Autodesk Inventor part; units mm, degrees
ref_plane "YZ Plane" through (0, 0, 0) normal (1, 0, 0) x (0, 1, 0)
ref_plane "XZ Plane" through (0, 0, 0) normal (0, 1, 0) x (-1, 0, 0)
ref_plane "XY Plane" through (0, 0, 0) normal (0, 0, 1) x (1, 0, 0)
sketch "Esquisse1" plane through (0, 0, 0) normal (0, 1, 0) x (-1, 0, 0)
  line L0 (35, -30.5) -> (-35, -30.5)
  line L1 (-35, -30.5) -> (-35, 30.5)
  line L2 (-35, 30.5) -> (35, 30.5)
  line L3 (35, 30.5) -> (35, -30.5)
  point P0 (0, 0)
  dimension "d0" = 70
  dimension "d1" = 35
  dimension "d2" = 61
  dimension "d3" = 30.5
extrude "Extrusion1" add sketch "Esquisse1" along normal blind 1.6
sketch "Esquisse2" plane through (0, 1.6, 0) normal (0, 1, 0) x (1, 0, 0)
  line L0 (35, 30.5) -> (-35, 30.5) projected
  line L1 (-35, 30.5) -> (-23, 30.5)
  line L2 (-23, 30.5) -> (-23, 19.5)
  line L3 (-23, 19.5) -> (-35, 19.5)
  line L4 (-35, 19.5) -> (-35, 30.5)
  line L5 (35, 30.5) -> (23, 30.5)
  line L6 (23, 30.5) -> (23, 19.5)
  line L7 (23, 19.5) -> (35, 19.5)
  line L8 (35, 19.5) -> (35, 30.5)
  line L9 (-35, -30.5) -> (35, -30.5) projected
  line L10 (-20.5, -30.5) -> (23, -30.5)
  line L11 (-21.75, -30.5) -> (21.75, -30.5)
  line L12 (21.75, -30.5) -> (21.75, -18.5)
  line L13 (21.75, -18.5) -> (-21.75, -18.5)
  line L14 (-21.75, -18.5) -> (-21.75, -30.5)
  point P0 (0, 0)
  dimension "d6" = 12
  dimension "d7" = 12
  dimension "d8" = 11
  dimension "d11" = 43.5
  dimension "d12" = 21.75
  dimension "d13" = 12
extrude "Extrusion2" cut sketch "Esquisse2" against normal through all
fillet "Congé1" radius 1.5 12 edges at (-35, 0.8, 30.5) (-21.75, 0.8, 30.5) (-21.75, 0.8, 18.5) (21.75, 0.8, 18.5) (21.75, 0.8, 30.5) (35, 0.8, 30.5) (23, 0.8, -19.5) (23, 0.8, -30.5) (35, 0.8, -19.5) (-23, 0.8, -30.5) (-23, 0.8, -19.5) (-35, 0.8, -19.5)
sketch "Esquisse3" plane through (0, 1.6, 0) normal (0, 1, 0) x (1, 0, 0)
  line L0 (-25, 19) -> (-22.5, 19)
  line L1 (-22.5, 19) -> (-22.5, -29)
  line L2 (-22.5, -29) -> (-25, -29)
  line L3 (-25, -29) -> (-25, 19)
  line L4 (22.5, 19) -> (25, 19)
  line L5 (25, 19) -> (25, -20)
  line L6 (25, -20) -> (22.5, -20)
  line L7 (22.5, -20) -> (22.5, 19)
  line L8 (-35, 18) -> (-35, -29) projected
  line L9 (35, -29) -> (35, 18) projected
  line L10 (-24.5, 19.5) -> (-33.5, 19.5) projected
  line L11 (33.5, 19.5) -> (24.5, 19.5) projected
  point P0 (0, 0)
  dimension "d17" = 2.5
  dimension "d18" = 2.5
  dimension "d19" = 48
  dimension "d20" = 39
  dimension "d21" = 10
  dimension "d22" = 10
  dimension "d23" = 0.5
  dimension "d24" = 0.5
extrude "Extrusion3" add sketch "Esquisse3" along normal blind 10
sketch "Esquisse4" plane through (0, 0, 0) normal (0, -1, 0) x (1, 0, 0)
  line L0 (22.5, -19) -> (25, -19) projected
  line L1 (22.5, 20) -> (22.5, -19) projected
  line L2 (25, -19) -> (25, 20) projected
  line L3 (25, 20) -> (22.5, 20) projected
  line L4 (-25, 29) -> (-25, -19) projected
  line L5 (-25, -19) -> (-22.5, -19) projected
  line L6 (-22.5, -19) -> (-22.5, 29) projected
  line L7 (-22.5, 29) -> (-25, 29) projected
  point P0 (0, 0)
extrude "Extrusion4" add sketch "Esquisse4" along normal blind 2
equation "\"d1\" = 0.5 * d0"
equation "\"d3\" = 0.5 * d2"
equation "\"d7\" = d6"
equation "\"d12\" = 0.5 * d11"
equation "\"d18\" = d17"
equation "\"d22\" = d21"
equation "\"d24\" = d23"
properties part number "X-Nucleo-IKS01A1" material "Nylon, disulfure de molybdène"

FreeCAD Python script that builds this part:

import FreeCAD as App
import Part
import Sketcher
from FreeCAD import Vector


def edges_at(feature, points):
    """Names of the edges that pass closest to the given points."""
    edges = feature.Shape.Edges
    near = lambda p: min(range(len(edges)), key=lambda i: edges[i].distToShape(Part.Vertex(*p))[0])
    return sorted({f"Edge{near(p) + 1}" for p in points})


def add_polygon(sketch, points):
    """Adds a closed chain of lines whose ends are joined by coincident constraints."""
    first, n = sketch.GeometryCount, len(points)
    for a, b in zip(points, points[1:] + points[:1]):
        sketch.addGeometry(Part.LineSegment(App.Vector(*a, 0), App.Vector(*b, 0)), False)
    for i in range(n):
        sketch.addConstraint(Sketcher.Constraint("Coincident", first + i, 2, first + (i + 1) % n, 1))

doc = App.newDocument("Part")
body = doc.addObject("PartDesign::Body", "Body")

sketch1 = body.newObject("Sketcher::SketchObject", "Sketch")
sketch1.AttachmentSupport = (doc.getObject("XZ_Plane"), [""])
sketch1.MapMode = "FlatFace"
add_polygon(sketch1, [(35, -30), (-35, -30), (-35, 30), (35, 30)])
sketch1.addConstraint(Sketcher.Constraint("Horizontal", 0))
sketch1.addConstraint(Sketcher.Constraint("Vertical", 1))
sketch1.addConstraint(Sketcher.Constraint("Horizontal", 2))
sketch1.addConstraint(Sketcher.Constraint("Vertical", 3))
sketch1.addConstraint(Sketcher.Constraint("Symmetric", 0, 2, 2, 2, -1, 1))
sketch1.addConstraint(Sketcher.Constraint("DistanceX", 0, 2, 0, 1, 70.0))
sketch1.addConstraint(Sketcher.Constraint("DistanceY", 1, 1, 1, 2, 61.0))
pad1 = body.newObject("PartDesign::Pad", "Pad")
pad1.Profile = sketch1
pad1.Length = 1.6
pad1.Reversed = True

sketch2 = body.newObject("Sketcher::SketchObject", "Sketch001")
sketch2.AttachmentSupport = (doc.getObject("XZ_Plane"), [""])
sketch2.MapMode = "FlatFace"
sketch2.AttachmentOffset = App.Placement(Vector(0, 0, -1.6), App.Rotation())
add_polygon(sketch2, [(35, -20), (35, -30), (23, -30), (23, -20)])
add_polygon(sketch2, [(-23, -20), (-23, -30), (-35, -30), (-35, -20)])
add_polygon(sketch2, [(-22, 18), (-22, 30), (22, 30), (22, 18)])
sketch2.addConstraint(Sketcher.Constraint("Vertical", 0))
sketch2.addConstraint(Sketcher.Constraint("Horizontal", 1))
sketch2.addConstraint(Sketcher.Constraint("Vertical", 2))
sketch2.addConstraint(Sketcher.Constraint("Horizontal", 3))
sketch2.addConstraint(Sketcher.Constraint("Vertical", 4))
sketch2.addConstraint(Sketcher.Constraint("Horizontal", 5))
sketch2.addConstraint(Sketcher.Constraint("Vertical", 6))
sketch2.addConstraint(Sketcher.Constraint("Horizontal", 7))
sketch2.addConstraint(Sketcher.Constraint("Vertical", 8))
sketch2.addConstraint(Sketcher.Constraint("Horizontal", 9))
sketch2.addConstraint(Sketcher.Constraint("Vertical", 10))
sketch2.addConstraint(Sketcher.Constraint("Horizontal", 11))
sketch2.addConstraint(Sketcher.Constraint("Symmetric", 1, 2, 4, 2, -2))
sketch2.addConstraint(Sketcher.Constraint("Symmetric", 3, 2, 6, 2, -2))
sketch2.addConstraint(Sketcher.Constraint("Equal", 7, 8))
sketch2.addConstraint(Sketcher.Constraint("DistanceX", 1, 2, 1, 1, 12.0))
sketch2.addConstraint(Sketcher.Constraint("DistanceY", 0, 2, 0, 1, 11.0))
sketch2.addConstraint(Sketcher.Constraint("DistanceX", 9, 1, 9, 2, 43.5))
sketch2.addConstraint(Sketcher.Constraint("DistanceX", 8, 2, -1, 1, 21.75))
sketch2.addConstraint(Sketcher.Constraint("DistanceX", -1, 1, 0, 2, 35.0))
sketch2.addConstraint(Sketcher.Constraint("DistanceY", 7, 2, 8, 2, 50.0))
sketch2.addConstraint(Sketcher.Constraint("DistanceY", 0, 2, -1, 1, 30.5))
pocket1 = body.newObject("PartDesign::Pocket", "Pocket")
pocket1.Profile = sketch2
pocket1.Type = "ThroughAll"
pocket1.Reversed = True
doc.recompute()

fillet = body.newObject("PartDesign::Fillet", "Fillet")
fillet.Base = (pocket1, edges_at(pocket1, [
    (-35, 0.8, 30.5),
    (-21.75, 0.8, 30.5),
    (-21.75, 0.8, 18.5),
    (21.75, 0.8, 18.5),
    (21.75, 0.8, 30.5),
    (35, 0.8, 30.5),
    (23, 0.8, -19.5),
    (23, 0.8, -30.5),
    (35, 0.8, -19.5),
    (-23, 0.8, -30.5),
    (-23, 0.8, -19.5),
    (-35, 0.8, -19.5),
]))
fillet.Radius = 1.5

sketch3 = body.newObject("Sketcher::SketchObject", "Sketch002")
sketch3.AttachmentSupport = (doc.getObject("XZ_Plane"), [""])
sketch3.MapMode = "FlatFace"
sketch3.AttachmentOffset = App.Placement(Vector(0, 0, -1.6), App.Rotation())
add_polygon(sketch3, [(-22.5, -19), (-25, -19), (-25, 29), (-22.5, 29)])
add_polygon(sketch3, [(25, -19), (22.5, -19), (22.5, 20), (25, 20)])
sketch3.addConstraint(Sketcher.Constraint("Horizontal", 0))
sketch3.addConstraint(Sketcher.Constraint("Vertical", 1))
sketch3.addConstraint(Sketcher.Constraint("Horizontal", 2))
sketch3.addConstraint(Sketcher.Constraint("Vertical", 3))
sketch3.addConstraint(Sketcher.Constraint("Horizontal", 4))
sketch3.addConstraint(Sketcher.Constraint("Vertical", 5))
sketch3.addConstraint(Sketcher.Constraint("Horizontal", 6))
sketch3.addConstraint(Sketcher.Constraint("Vertical", 7))
sketch3.addConstraint(Sketcher.Constraint("Symmetric", 3, 2, 4, 2, -2))
sketch3.addConstraint(Sketcher.Constraint("Equal", 2, 4))
sketch3.addConstraint(Sketcher.Constraint("DistanceY", 1, 1, 1, 2, 48.0))
sketch3.addConstraint(Sketcher.Constraint("DistanceY", 5, 1, 5, 2, 39.0))
sketch3.addConstraint(Sketcher.Constraint("DistanceX", 0, 2, 0, 1, 2.5))
sketch3.addConstraint(Sketcher.Constraint("DistanceX", 0, 2, -1, 1, 25.0))
sketch3.addConstraint(Sketcher.Constraint("DistanceY", 0, 2, -1, 1, 19.0))
pad2 = body.newObject("PartDesign::Pad", "Pad001")
pad2.Profile = sketch3
pad2.Length = 10
pad2.Reversed = True

sketch4 = body.newObject("Sketcher::SketchObject", "Sketch003")
sketch4.AttachmentSupport = (doc.getObject("XZ_Plane"), [""])
sketch4.MapMode = "FlatFace"
add_polygon(sketch4, [(22.5, 20), (22.5, -19), (25, -19), (25, 20)])
add_polygon(sketch4, [(-22.5, 29), (-25, 29), (-25, -19), (-22.5, -19)])
sketch4.addConstraint(Sketcher.Constraint("Vertical", 0))
sketch4.addConstraint(Sketcher.Constraint("Horizontal", 1))
sketch4.addConstraint(Sketcher.Constraint("Vertical", 2))
sketch4.addConstraint(Sketcher.Constraint("Horizontal", 3))
sketch4.addConstraint(Sketcher.Constraint("Horizontal", 4))
sketch4.addConstraint(Sketcher.Constraint("Vertical", 5))
sketch4.addConstraint(Sketcher.Constraint("Horizontal", 6))
sketch4.addConstraint(Sketcher.Constraint("Vertical", 7))
sketch4.addConstraint(Sketcher.Constraint("Symmetric", 1, 2, 5, 2, -2))
sketch4.addConstraint(Sketcher.Constraint("Equal", 3, 4))
sketch4.addConstraint(Sketcher.Constraint("DistanceY", 0, 2, 0, 1, 39.0))
sketch4.addConstraint(Sketcher.Constraint("DistanceY", 5, 2, 5, 1, 48.0))
sketch4.addConstraint(Sketcher.Constraint("DistanceX", 1, 1, 1, 2, 2.5))
sketch4.addConstraint(Sketcher.Constraint("DistanceY", 0, 2, -1, 1, 19.0))
sketch4.addConstraint(Sketcher.Constraint("DistanceX", -1, 1, 1, 2, 25.0))
pad3 = body.newObject("PartDesign::Pad", "Pad002")
pad3.Profile = sketch4
pad3.Length = 2

doc.recompute()
